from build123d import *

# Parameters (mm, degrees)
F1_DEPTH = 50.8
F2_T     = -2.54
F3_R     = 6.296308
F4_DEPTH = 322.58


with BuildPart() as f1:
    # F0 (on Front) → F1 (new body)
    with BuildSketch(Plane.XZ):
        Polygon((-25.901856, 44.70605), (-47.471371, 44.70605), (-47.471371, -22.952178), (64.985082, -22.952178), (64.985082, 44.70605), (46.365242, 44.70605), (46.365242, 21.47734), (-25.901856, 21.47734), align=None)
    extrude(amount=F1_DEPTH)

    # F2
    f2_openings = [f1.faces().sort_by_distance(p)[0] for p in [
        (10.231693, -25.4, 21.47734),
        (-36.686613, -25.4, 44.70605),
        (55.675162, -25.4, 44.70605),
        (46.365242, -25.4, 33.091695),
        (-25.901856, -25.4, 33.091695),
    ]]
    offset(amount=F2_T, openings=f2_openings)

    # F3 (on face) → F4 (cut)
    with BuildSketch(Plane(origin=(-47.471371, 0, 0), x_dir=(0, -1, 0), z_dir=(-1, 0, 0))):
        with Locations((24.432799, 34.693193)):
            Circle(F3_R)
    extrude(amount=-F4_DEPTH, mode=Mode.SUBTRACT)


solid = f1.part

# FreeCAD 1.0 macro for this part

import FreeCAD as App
import Part
import Sketcher

V = App.Vector
Q = App.Units.Quantity


def faces_at(feature, points):
    """Names of the faces that lie closest to the given points."""
    faces = feature.Shape.Faces
    near = lambda p: min(range(len(faces)), key=lambda i: faces[i].distToShape(Part.Vertex(*p))[0])
    return sorted({f"Face{near(p) + 1}" for p in points})

doc = App.newDocument("Part")
body = doc.addObject("PartDesign::Body", "Body")

# Sketch on XZ plane
sketch1 = doc.addObject("Sketcher::SketchObject", "Sketch")
body.addObject(sketch1)
sketch1.AttachmentSupport = (doc.XZ_Plane, [""])
sketch1.MapMode = "FlatFace"
sketch1.addGeometry([
    Part.LineSegment(V(-26, 45, 0), V(-47, 45, 0)),  # 0
    Part.LineSegment(V(-47, 45, 0), V(-47, -23, 0)),  # 1
    Part.LineSegment(V(-47, -23, 0), V(65, -23, 0)),  # 2
    Part.LineSegment(V(65, -23, 0), V(65, 45, 0)),  # 3
    Part.LineSegment(V(65, 45, 0), V(46, 45, 0)),  # 4
    Part.LineSegment(V(46, 45, 0), V(46, 21, 0)),  # 5
    Part.LineSegment(V(46, 21, 0), V(-26, 21, 0)),  # 6
    Part.LineSegment(V(-26, 21, 0), V(-26, 45, 0)),  # 7
], False)
sketch1.addConstraint([
    Sketcher.Constraint("Coincident", 0, 2, 1, 1),
    Sketcher.Constraint("Coincident", 1, 2, 2, 1),
    Sketcher.Constraint("Coincident", 2, 2, 3, 1),
    Sketcher.Constraint("Coincident", 3, 2, 4, 1),
    Sketcher.Constraint("Coincident", 4, 2, 5, 1),
    Sketcher.Constraint("Coincident", 5, 2, 6, 1),
    Sketcher.Constraint("Coincident", 6, 2, 7, 1),
    Sketcher.Constraint("Coincident", 7, 2, 0, 1),
    Sketcher.Constraint("Horizontal", 0),
    Sketcher.Constraint("Vertical", 1),
    Sketcher.Constraint("Horizontal", 2),
    Sketcher.Constraint("Vertical", 3),
    Sketcher.Constraint("Horizontal", 4),
    Sketcher.Constraint("Vertical", 5),
    Sketcher.Constraint("Horizontal", 6),
    Sketcher.Constraint("Vertical", 7),
    Sketcher.Constraint("Horizontal", 0, 2, 3, 2),
    Sketcher.Constraint("DistanceX", 6, 2, 6, 1, Q("72.267098 mm")),
    Sketcher.Constraint("DistanceX", 4, 2, 4, 1, Q("18.61984 mm")),
    Sketcher.Constraint("DistanceY", 5, 2, 5, 1, Q("23.22871 mm")),
    Sketcher.Constraint("DistanceX", 0, 2, 0, 1, Q("21.569515 mm")),
    Sketcher.Constraint("DistanceY", 1, 2, 1, 1, Q("67.658228 mm")),
    Sketcher.Constraint("DistanceX", 0, 2, -1, 1, Q("47.471371 mm")),
    Sketcher.Constraint("DistanceY", -1, 1, 0, 2, Q("44.70605 mm")),
])
pad1 = doc.addObject("PartDesign::Pad", "Pad")
body.addObject(pad1)
pad1.Profile = sketch1
pad1.Length = Q("2 in")
doc.recompute()

thickness = doc.addObject("PartDesign::Thickness", "Thickness")
body.addObject(thickness)
thickness.Base = (pad1, faces_at(pad1, [
    (10.232, -25.4, 21.477),
    (-36.687, -25.4, 44.706),
    (55.675, -25.4, 44.706),
    (46.365, -25.4, 33.092),
    (-25.902, -25.4, 33.092),
]))
thickness.Value = Q("0.1 in")
thickness.Reversed = True
thickness.Join = "Arc"

# Sketch on YZ plane
sketch2 = doc.addObject("Sketcher::SketchObject", "Sketch001")
body.addObject(sketch2)
sketch2.AttachmentSupport = (doc.YZ_Plane, [""])
sketch2.MapMode = "FlatFace"
sketch2.AttachmentOffset = App.Placement(V(0, 0, -47.471371), App.Rotation())
sketch2.addGeometry(Part.Circle(V(-24, 35, 0), V(0, 0, 1), 6), False)
sketch2.addConstraint([
    Sketcher.Constraint("Diameter", 0, Q("12.592616 mm")),
    Sketcher.Constraint("DistanceX", 0, 3, -1, 1, Q("24.432799 mm")),
    Sketcher.Constraint("DistanceY", -1, 1, 0, 3, Q("34.693193 mm")),
])
pocket1 = doc.addObject("PartDesign::Pocket", "Pocket")
body.addObject(pocket1)
pocket1.Profile = sketch2
pocket1.Length = Q("12.7 in")
pocket1.Reversed = True

doc.recompute()
